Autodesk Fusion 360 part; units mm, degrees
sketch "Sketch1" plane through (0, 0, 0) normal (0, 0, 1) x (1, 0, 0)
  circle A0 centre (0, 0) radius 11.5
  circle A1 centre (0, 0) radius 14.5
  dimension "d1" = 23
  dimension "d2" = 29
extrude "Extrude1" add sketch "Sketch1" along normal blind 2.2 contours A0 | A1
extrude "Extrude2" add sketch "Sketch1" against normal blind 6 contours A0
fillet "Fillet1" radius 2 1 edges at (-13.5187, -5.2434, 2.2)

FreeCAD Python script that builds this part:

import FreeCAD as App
import Part
import Sketcher

V = App.Vector


def edges_at(feature, points):
    """Names of the edges that pass closest to the given points."""
    edges = feature.Shape.Edges
    near = lambda p: min(range(len(edges)), key=lambda i: edges[i].distToShape(Part.Vertex(*p))[0])
    return sorted({f"Edge{near(p) + 1}" for p in points})

doc = App.newDocument("Part")
body = doc.addObject("PartDesign::Body", "Body")

# Sketch on XY plane
sketch1 = doc.addObject("Sketcher::SketchObject", "Sketch")
body.addObject(sketch1)
sketch1.AttachmentSupport = (doc.XY_Plane, [""])
sketch1.MapMode = "FlatFace"
sketch1.addGeometry(Part.Circle(V(0, 0, 0), V(0, 0, 1), 14), False)
sketch1.addConstraint(Sketcher.Constraint("Coincident", 0, 3, -1, 1))
sketch1.addConstraint(Sketcher.Constraint("Diameter", 0, 29.0))
pad1 = doc.addObject("PartDesign::Pad", "Pad")
body.addObject(pad1)
pad1.Profile = sketch1
pad1.Length = 2.2

# Sketch on XY plane
sketch2 = doc.addObject("Sketcher::SketchObject", "Sketch001")
body.addObject(sketch2)
sketch2.AttachmentSupport = (doc.XY_Plane, [""])
sketch2.MapMode = "FlatFace"
sketch2.addGeometry(Part.Circle(V(0, 0, 0), V(0, 0, 1), 12), False)
sketch2.addConstraint(Sketcher.Constraint("Coincident", 0, 3, -1, 1))
sketch2.addConstraint(Sketcher.Constraint("Diameter", 0, 23.0))
pad2 = doc.addObject("PartDesign::Pad", "Pad001")
body.addObject(pad2)
pad2.Profile = sketch2
pad2.Length = 6
pad2.Reversed = True
doc.recompute()

fillet = doc.addObject("PartDesign::Fillet", "Fillet")
body.addObject(fillet)
fillet.Base = (pad2, edges_at(pad2, [(-13.519, -5.243, 2.2)]))
fillet.Radius = 2

doc.recompute()
